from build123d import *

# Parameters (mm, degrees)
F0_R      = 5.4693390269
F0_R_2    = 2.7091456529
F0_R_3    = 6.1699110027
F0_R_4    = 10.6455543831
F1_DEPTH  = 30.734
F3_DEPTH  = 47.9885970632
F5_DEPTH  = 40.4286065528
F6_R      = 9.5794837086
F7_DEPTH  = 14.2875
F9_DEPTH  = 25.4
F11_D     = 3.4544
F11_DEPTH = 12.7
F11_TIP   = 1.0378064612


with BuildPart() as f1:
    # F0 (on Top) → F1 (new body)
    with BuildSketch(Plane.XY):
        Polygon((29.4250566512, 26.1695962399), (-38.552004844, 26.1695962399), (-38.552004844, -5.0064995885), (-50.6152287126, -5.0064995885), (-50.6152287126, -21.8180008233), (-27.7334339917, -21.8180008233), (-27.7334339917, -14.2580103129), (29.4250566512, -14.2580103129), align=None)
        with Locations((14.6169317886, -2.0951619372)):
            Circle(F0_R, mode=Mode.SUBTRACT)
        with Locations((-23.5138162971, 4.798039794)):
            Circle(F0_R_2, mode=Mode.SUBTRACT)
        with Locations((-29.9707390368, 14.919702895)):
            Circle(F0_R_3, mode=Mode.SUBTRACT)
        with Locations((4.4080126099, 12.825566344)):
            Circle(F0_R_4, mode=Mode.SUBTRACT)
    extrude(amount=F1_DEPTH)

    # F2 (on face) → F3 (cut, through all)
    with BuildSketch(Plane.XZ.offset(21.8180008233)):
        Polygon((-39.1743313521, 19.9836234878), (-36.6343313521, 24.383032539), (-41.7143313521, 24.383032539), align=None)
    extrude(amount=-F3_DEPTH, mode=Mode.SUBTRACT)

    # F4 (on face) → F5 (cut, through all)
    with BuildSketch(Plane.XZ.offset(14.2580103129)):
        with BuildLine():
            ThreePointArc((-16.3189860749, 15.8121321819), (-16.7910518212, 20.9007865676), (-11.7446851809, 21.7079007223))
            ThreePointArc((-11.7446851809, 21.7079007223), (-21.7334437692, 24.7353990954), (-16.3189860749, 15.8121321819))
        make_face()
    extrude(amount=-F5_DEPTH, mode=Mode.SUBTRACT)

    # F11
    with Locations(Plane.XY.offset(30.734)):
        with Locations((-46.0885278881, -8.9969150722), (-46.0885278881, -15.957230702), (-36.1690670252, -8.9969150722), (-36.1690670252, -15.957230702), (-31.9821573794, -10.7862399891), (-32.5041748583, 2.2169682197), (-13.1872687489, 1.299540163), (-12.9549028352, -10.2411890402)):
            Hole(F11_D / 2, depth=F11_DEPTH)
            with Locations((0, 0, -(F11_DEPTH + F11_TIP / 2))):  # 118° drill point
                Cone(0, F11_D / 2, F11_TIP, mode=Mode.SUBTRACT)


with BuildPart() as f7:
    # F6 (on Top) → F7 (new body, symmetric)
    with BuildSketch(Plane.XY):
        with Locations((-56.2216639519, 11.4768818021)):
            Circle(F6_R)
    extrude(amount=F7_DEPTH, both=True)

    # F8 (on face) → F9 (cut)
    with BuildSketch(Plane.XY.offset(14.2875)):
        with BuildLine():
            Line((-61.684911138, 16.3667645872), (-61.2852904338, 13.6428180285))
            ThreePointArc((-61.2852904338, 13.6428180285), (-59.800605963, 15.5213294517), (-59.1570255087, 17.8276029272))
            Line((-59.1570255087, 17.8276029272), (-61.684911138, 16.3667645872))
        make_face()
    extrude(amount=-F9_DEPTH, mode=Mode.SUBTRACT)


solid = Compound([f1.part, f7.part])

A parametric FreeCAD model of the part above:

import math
import FreeCAD as App
import Part
import Sketcher
Q = App.Units.Quantity


def add_polygon(sketch, points):
    """Adds a closed chain of lines whose ends are joined by coincident constraints."""
    first, n = sketch.GeometryCount, len(points)
    for a, b in zip(points, points[1:] + points[:1]):
        sketch.addGeometry(Part.LineSegment(App.Vector(*a, 0), App.Vector(*b, 0)), False)
    for i in range(n):
        sketch.addConstraint(Sketcher.Constraint("Coincident", first + i, 2, first + (i + 1) % n, 1))

doc = App.newDocument("Part")
body = doc.addObject("PartDesign::Body", "Body")

# Sketch on XY plane
sketch1 = body.newObject("Sketcher::SketchObject", "Sketch")
sketch1.AttachmentSupport = (doc.getObject("XY_Plane"), [""])
sketch1.MapMode = "FlatFace"
add_polygon(sketch1, [(29.425057, 26.169596), (-38.552005, 26.169596), (-38.552005, -5.0065), (-50.615229, -5.0065), (-50.615229, -21.818001), (-27.733434, -21.818001), (-27.733434, -14.25801), (29.425057, -14.25801)])  # lines 0-7
sketch1.addGeometry(Part.Circle(App.Vector(-23.513816, 4.79804, 0), App.Vector(0, 0, 1), 2.709146), False)  # 8
sketch1.addGeometry(Part.Circle(App.Vector(14.616932, -2.095162, 0), App.Vector(0, 0, 1), 5.469339), False)  # 9
sketch1.addGeometry(Part.Circle(App.Vector(-29.970739, 14.919703, 0), App.Vector(0, 0, 1), 6.169911), False)  # 10
sketch1.addGeometry(Part.Circle(App.Vector(4.408013, 12.825566, 0), App.Vector(0, 0, 1), 10.645554), False)  # 11
sketch1.addConstraint([
    Sketcher.Constraint("Horizontal", 0),
    Sketcher.Constraint("Vertical", 1),
    Sketcher.Constraint("Horizontal", 2),
    Sketcher.Constraint("Vertical", 3),
    Sketcher.Constraint("Horizontal", 4),
    Sketcher.Constraint("Vertical", 5),
    Sketcher.Constraint("Horizontal", 6),
    Sketcher.Constraint("Vertical", 7),
    Sketcher.Constraint("Diameter", 8, Q("5.418291 mm")),
    Sketcher.Constraint("Diameter", 9, Q("10.938678 mm")),
    Sketcher.Constraint("Diameter", 11, Q("21.291109 mm")),
    Sketcher.Constraint("Diameter", 10, Q("12.339822 mm")),
    Sketcher.Constraint("DistanceY", 3, 2, 3, 1, Q("16.811501 mm")),
    Sketcher.Constraint("DistanceY", 8, 3, 0, 2, Q("0.8413999 in")),
    Sketcher.Constraint("DistanceX", 0, 2, 0, 1, Q("67.977061 mm")),
    Sketcher.Constraint("DistanceX", 6, 1, 6, 2, Q("57.158491 mm")),
    Sketcher.Constraint("DistanceY", 5, 1, 5, 2, Q("7.559991 mm")),
    Sketcher.Constraint("DistanceY", 1, 2, -1, 1, Q("5.0065 mm")),
    Sketcher.Constraint("DistanceY", 9, 3, 8, 3, Q("6.893202 mm")),
    Sketcher.Constraint("DistanceX", 2, 2, 2, 1, Q("12.063224 mm")),
    Sketcher.Constraint("DistanceY", 1, 2, 1, 1, Q("31.176096 mm")),
    Sketcher.Constraint("DistanceX", -1, 1, 9, 3, Q("14.616932 mm")),
    Sketcher.Constraint("DistanceX", 10, 3, -1, 1, Q("29.970739 mm")),
    Sketcher.Constraint("DistanceX", 2, 2, -1, 1, Q("50.615229 mm")),
    Sketcher.Constraint("DistanceX", 8, 3, 9, 3, Q("38.130748 mm")),
    Sketcher.Constraint("DistanceX", 11, 3, 9, 3, Q("10.208919 mm")),
    Sketcher.Constraint("DistanceY", 9, 3, 11, 3, Q("14.920728 mm")),
    Sketcher.Constraint("DistanceY", -1, 1, 10, 3, Q("14.919703 mm")),
])
pad1 = body.newObject("PartDesign::Pad", "Pad")
pad1.Profile = sketch1
pad1.Length = Q("1.21 in")

# Sketch on XZ plane
sketch2 = body.newObject("Sketcher::SketchObject", "Sketch001")
sketch2.AttachmentSupport = (doc.getObject("XZ_Plane"), [""])
sketch2.MapMode = "FlatFace"
sketch2.AttachmentOffset = App.Placement(App.Vector(0, 0, 21.818001), App.Rotation())
add_polygon(sketch2, [(-39.174331, 19.983623), (-36.634331, 24.383033), (-41.714331, 24.383033)])  # lines 0-2
sketch2.addConstraint([
    Sketcher.Constraint("Horizontal", 1),
    Sketcher.Constraint("Equal", 0, 2),
    Sketcher.Constraint("DistanceX", 1, 2, 1, 1, Q("0.2 in")),
    Sketcher.Constraint("Angle", 0, Q("60 deg")),
    Sketcher.Constraint("DistanceX", 0, 2, -1, 1, Q("36.634331 mm")),
    Sketcher.Constraint("DistanceY", -1, 1, 0, 2, Q("24.383033 mm")),
])
pocket1 = body.newObject("PartDesign::Pocket", "Pocket")
pocket1.Profile = sketch2
pocket1.Type = "ThroughAll"

# Sketch on XZ plane
sketch3 = body.newObject("Sketcher::SketchObject", "Sketch002")
sketch3.AttachmentSupport = (doc.getObject("XZ_Plane"), [""])
sketch3.MapMode = "FlatFace"
sketch3.AttachmentOffset = App.Placement(App.Vector(0, 0, 14.25801), App.Rotation())
sketch3.addGeometry([
    Part.ArcOfCircle(Part.Circle(App.Vector(-13.836717, 18.608632, 0), App.Vector(0, 0, 1), 3.73926), math.radians(55.980328), math.radians(228.40664)),
    Part.ArcOfCircle(Part.Circle(App.Vector(-17.31847, 21.30999, 0), App.Vector(0, 0, 1), 5.58797), math.radians(4.083395), math.radians(280.303573)),
], False)
sketch3.addConstraint([
    Sketcher.Constraint("Coincident", 0, 1, 1, 1),
    Sketcher.Constraint("Coincident", 1, 2, 0, 2),
    Sketcher.Constraint("Radius", 0, Q("3.73926 mm")),
    Sketcher.Constraint("Radius", 1, Q("5.58797 mm")),
    Sketcher.Constraint("DistanceY", -1, 1, 0, 1, Q("21.707901 mm")),
    Sketcher.Constraint("DistanceY", 1, 2, 0, 3, Q("2.796499 mm")),
    Sketcher.Constraint("DistanceX", 1, 2, 0, 1, Q("4.574301 mm")),
    Sketcher.Constraint("DistanceX", 1, 3, -1, 1, Q("17.31847 mm")),
])
pocket2 = body.newObject("PartDesign::Pocket", "Pocket001")
pocket2.Profile = sketch3
pocket2.Type = "ThroughAll"

# Sketch on XY plane
sketch4 = body.newObject("Sketcher::SketchObject", "Sketch003")
sketch4.AttachmentSupport = (doc.getObject("XY_Plane"), [""])
sketch4.MapMode = "FlatFace"
sketch4.AttachmentOffset = App.Placement(App.Vector(0, 0, 1.21 * 25.4), App.Rotation())
sketch4.addGeometry([
    Part.Circle(App.Vector(-46.088528, -8.996915, 0), App.Vector(0, 0, 1), 1.7272),  # 0
    Part.Circle(App.Vector(-46.088528, -15.957231, 0), App.Vector(0, 0, 1), 1.7272),  # 1
    Part.Circle(App.Vector(-36.169067, -8.996915, 0), App.Vector(0, 0, 1), 1.7272),  # 2
    Part.Circle(App.Vector(-36.169067, -15.957231, 0), App.Vector(0, 0, 1), 1.7272),  # 3
    Part.Circle(App.Vector(-31.982157, -10.78624, 0), App.Vector(0, 0, 1), 1.7272),  # 4
    Part.Circle(App.Vector(-32.504175, 2.216968, 0), App.Vector(0, 0, 1), 1.7272),  # 5
    Part.Circle(App.Vector(-13.187269, 1.29954, 0), App.Vector(0, 0, 1), 1.7272),  # 6
    Part.Circle(App.Vector(-12.954903, -10.241189, 0), App.Vector(0, 0, 1), 1.7272),  # 7
], False)
sketch4.addConstraint([
    Sketcher.Constraint("Equal", 0, 1),
    Sketcher.Constraint("Equal", 1, 2),
    Sketcher.Constraint("Equal", 2, 3),
    Sketcher.Constraint("Equal", 3, 4),
    Sketcher.Constraint("Equal", 4, 5),
    Sketcher.Constraint("Equal", 5, 6),
    Sketcher.Constraint("Equal", 6, 7),
    Sketcher.Constraint("Horizontal", 0, 3, 2, 3),
    Sketcher.Constraint("Horizontal", 1, 3, 3, 3),
    Sketcher.Constraint("Vertical", 0, 3, 1, 3),
    Sketcher.Constraint("Vertical", 2, 3, 3, 3),
    Sketcher.Constraint("Diameter", 0, Q("0.136 in")),
    Sketcher.Constraint("DistanceY", 3, 3, 5, 3, Q("18.174199 mm")),
    Sketcher.Constraint("DistanceX", 2, 3, 6, 3, Q("22.981798 mm")),
    Sketcher.Constraint("DistanceY", 1, 3, -1, 1, Q("15.957231 mm")),
    Sketcher.Constraint("DistanceY", 4, 3, -1, 1, Q("10.78624 mm")),
    Sketcher.Constraint("DistanceX", 6, 3, -1, 1, Q("13.187269 mm")),
    Sketcher.Constraint("DistanceY", -1, 1, 6, 3, Q("1.29954 mm")),
    Sketcher.Constraint("DistanceY", 7, 3, -1, 1, Q("10.241189 mm")),
    Sketcher.Constraint("DistanceX", 0, 3, 2, 3, Q("9.919461 mm")),
    Sketcher.Constraint("DistanceX", 2, 3, 4, 3, Q("4.18691 mm")),
    Sketcher.Constraint("DistanceY", 0, 3, -1, 1, Q("8.996915 mm")),
    Sketcher.Constraint("DistanceX", 5, 3, -1, 1, Q("32.504175 mm")),
    Sketcher.Constraint("DistanceX", 7, 3, -1, 1, Q("12.954903 mm")),
])
doc.recompute()
hole = body.newObject("PartDesign::Hole", "Hole")
hole.Profile = sketch4
hole.ThreadType = "None"
hole.Diameter = Q("0.136 in")
hole.DepthType = "Dimension"
hole.Depth = Q("0.5 in")
hole.DrillPoint = "Angled"
hole.DrillPointAngle = 118
body2 = doc.addObject("PartDesign::Body", "Body001")

# Sketch on XY plane
sketch5 = body2.newObject("Sketcher::SketchObject", "Sketch004")
sketch5.AttachmentSupport = (doc.getObject("XY_Plane001"), [""])
sketch5.MapMode = "FlatFace"
sketch5.addGeometry(Part.Circle(App.Vector(-56.221664, 11.476882, 0), App.Vector(0, 0, 1), 9.579484), False)
sketch5.addConstraint([
    Sketcher.Constraint("Diameter", 0, Q("19.158967 mm")),
    Sketcher.Constraint("DistanceY", -1, 1, 0, 3, Q("11.476882 mm")),
    Sketcher.Constraint("DistanceX", 0, 3, -1, 1, Q("56.221664 mm")),
])
pad2 = body2.newObject("PartDesign::Pad", "Pad001")
pad2.Profile = sketch5
pad2.Length = Q("1.125 in")
pad2.Midplane = True

# Sketch on XY plane
sketch6 = body2.newObject("Sketcher::SketchObject", "Sketch005")
sketch6.AttachmentSupport = (doc.getObject("XY_Plane001"), [""])
sketch6.MapMode = "FlatFace"
sketch6.AttachmentOffset = App.Placement(App.Vector(0, 0, 0.5625 * 25.4), App.Rotation())
sketch6.addGeometry([
    Part.LineSegment(App.Vector(-61.684911, 16.366765, 0), App.Vector(-61.28529, 13.642818, 0)),
    Part.ArcOfCircle(Part.Circle(App.Vector(-65.216072, 18.275484, 0), App.Vector(0, 0, 1), 6.075577), math.radians(-49.685654), math.radians(-4.227585)),
    Part.LineSegment(App.Vector(-59.157026, 17.827603, 0), App.Vector(-61.684911, 16.366765, 0)),
], False)
sketch6.addConstraint([
    Sketcher.Constraint("Coincident", 0, 2, 1, 1),
    Sketcher.Constraint("Coincident", 1, 2, 2, 1),
    Sketcher.Constraint("Coincident", 2, 2, 0, 1),
    Sketcher.Constraint("Radius", 1, Q("6.075577 mm")),
    Sketcher.Constraint("DistanceX", 1, 3, -1, 1, Q("65.216072 mm")),
    Sketcher.Constraint("DistanceX", 0, 2, -1, 1, Q("61.28529 mm")),
    Sketcher.Constraint("DistanceY", -1, 1, 0, 2, Q("13.642818 mm")),
    Sketcher.Constraint("DistanceX", 2, 2, -1, 1, Q("61.684911 mm")),
    Sketcher.Constraint("DistanceY", 1, 2, 1, 3, Q("0.447882 mm")),
    Sketcher.Constraint("DistanceY", 2, 2, 1, 2, Q("1.460838 mm")),
])
pocket3 = body2.newObject("PartDesign::Pocket", "Pocket002")
pocket3.Profile = sketch6
pocket3.Length = Q("1 in")

doc.recompute()
